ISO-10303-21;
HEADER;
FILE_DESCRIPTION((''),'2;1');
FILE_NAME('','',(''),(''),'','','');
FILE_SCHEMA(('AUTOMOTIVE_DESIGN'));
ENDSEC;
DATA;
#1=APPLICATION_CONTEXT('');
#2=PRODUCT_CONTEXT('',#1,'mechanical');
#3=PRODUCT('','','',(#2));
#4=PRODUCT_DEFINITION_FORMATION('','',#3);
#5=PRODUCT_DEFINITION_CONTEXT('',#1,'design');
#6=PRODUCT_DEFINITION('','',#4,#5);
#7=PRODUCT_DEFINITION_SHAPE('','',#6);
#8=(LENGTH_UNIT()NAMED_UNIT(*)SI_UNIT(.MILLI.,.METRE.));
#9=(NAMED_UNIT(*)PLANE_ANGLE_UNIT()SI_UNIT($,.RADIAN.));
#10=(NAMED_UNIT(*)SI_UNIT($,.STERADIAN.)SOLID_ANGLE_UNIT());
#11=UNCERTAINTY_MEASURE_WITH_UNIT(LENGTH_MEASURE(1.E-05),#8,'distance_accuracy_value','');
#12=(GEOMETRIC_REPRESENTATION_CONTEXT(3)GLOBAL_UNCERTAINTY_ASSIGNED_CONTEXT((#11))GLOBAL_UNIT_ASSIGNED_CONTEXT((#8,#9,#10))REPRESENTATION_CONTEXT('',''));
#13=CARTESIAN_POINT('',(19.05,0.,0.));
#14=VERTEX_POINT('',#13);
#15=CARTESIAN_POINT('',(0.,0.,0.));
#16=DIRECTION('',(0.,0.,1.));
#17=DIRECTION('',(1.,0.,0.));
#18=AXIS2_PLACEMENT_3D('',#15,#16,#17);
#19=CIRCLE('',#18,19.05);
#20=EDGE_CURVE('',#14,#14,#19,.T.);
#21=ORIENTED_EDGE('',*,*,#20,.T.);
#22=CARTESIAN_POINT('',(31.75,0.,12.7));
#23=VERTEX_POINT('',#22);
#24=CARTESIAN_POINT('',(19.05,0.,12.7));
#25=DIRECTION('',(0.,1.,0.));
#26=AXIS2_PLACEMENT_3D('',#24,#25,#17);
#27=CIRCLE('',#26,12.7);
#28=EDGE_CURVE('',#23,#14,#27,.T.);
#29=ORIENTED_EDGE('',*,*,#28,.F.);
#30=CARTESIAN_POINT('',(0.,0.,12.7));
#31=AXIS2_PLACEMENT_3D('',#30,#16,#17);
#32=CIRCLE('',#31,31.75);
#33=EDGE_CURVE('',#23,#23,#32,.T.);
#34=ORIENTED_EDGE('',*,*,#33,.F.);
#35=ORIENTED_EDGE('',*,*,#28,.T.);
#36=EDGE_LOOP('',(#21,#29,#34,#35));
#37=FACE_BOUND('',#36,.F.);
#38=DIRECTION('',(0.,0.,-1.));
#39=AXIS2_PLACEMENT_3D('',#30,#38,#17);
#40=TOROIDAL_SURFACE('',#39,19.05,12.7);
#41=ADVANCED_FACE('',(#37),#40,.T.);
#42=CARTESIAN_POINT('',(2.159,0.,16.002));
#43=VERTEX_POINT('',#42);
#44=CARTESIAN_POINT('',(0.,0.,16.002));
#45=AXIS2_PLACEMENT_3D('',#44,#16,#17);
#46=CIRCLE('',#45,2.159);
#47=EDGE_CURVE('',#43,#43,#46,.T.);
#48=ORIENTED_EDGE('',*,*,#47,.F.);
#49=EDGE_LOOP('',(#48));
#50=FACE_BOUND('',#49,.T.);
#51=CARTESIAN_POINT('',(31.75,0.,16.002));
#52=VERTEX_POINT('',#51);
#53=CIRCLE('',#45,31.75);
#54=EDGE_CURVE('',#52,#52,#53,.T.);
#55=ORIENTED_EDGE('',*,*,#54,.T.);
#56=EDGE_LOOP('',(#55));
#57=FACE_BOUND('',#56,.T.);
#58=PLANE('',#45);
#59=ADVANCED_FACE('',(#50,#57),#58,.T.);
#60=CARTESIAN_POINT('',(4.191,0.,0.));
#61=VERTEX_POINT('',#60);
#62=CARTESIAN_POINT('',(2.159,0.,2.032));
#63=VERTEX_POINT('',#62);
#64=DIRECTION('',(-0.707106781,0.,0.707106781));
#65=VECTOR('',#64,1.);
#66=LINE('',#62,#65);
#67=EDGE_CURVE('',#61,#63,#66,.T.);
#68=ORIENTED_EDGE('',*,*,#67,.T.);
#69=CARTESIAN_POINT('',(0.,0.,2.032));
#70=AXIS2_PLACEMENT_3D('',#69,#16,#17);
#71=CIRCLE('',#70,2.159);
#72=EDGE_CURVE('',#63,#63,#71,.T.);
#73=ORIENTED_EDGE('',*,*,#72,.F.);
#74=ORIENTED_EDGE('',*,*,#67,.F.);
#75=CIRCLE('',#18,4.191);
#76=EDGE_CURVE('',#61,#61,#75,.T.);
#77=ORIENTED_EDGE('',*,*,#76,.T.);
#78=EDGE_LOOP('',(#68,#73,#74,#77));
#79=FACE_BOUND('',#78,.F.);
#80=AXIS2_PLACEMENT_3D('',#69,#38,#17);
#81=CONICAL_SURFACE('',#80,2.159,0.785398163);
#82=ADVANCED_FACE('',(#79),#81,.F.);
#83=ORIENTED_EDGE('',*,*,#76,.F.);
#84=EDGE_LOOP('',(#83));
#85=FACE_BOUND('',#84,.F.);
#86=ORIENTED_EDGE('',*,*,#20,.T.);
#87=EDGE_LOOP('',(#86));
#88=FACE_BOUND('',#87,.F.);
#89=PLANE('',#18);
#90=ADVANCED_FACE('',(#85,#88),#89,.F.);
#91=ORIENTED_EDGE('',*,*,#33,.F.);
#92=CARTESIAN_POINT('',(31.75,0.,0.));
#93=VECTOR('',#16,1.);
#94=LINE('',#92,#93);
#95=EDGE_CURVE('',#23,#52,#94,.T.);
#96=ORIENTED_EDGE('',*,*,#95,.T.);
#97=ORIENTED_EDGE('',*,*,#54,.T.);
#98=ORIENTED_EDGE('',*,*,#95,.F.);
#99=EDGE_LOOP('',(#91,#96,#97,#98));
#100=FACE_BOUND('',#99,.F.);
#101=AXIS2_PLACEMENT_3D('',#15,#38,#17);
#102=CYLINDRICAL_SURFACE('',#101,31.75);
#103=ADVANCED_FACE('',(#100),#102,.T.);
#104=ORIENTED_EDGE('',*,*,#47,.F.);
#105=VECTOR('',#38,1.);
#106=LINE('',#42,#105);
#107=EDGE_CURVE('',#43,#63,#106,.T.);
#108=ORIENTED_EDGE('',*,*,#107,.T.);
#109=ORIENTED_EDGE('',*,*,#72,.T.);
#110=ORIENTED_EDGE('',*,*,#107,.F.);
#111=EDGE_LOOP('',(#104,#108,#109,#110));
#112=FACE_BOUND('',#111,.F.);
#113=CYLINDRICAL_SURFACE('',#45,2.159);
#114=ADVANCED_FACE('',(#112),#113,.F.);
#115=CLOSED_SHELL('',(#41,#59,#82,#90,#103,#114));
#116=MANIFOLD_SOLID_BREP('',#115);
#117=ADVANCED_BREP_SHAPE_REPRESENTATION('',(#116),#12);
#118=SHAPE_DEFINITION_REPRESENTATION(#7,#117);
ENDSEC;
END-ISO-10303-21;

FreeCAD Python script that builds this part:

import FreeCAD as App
import Part
import Sketcher
Q = App.Units.Quantity


def edges_at(feature, points):
    """Names of the edges that pass closest to the given points."""
    edges = feature.Shape.Edges
    near = lambda p: min(range(len(edges)), key=lambda i: edges[i].distToShape(Part.Vertex(*p))[0])
    return sorted({f"Edge{near(p) + 1}" for p in points})

doc = App.newDocument("Part")
params = doc.addObject("Spreadsheet::Sheet", "Params")
for row, (alias, value) in enumerate([
    ("sketch1_diameter", "2.5 in"),
    ("pad1_length", "0.63 in"),
    ("fillet_radius", "0.5 in"),
    ("sketch2_diameter", "0.17 in"),
    ("chamfer_size", "0.08 in"),
], start=1):
    params.set(f"A{row}", alias)
    params.set(f"B{row}", "=" + value)
    params.setAlias(f"B{row}", alias)

body = doc.addObject("PartDesign::Body", "Body")

sketch1 = body.newObject("Sketcher::SketchObject", "Sketch")
sketch1.AttachmentSupport = (doc.getObject("XY_Plane"), [""])
sketch1.MapMode = "FlatFace"
sketch1.addGeometry(Part.Circle(App.Vector(0, 0, 0), App.Vector(0, 0, 1), 31.75), False)
sketch1.addConstraint(Sketcher.Constraint("Coincident", 0, 3, -1, 1))
sketch1.addConstraint(Sketcher.Constraint("Diameter", 0, Q("2.5 in")))
sketch1.setExpression("Constraints[1]", "Params.sketch1_diameter")
pad1 = body.newObject("PartDesign::Pad", "Pad")
pad1.Profile = sketch1
pad1.setExpression("Length", "Params.pad1_length")
doc.recompute()

fillet = body.newObject("PartDesign::Fillet", "Fillet")
fillet.Base = (pad1, edges_at(pad1, [(-31.75, 0, 0)]))
fillet.setExpression("Radius", "Params.fillet_radius")

sketch2 = body.newObject("Sketcher::SketchObject", "Sketch001")
sketch2.AttachmentSupport = (doc.getObject("XY_Plane"), [""])
sketch2.MapMode = "FlatFace"
sketch2.AttachmentOffset = App.Placement(App.Vector(0, 0, 0.63 * 25.4), App.Rotation())
sketch2.addGeometry(Part.Circle(App.Vector(0, 0, 0), App.Vector(0, 0, 1), 2.159), False)
sketch2.addConstraint(Sketcher.Constraint("Coincident", 0, 3, -1, 1))
sketch2.addConstraint(Sketcher.Constraint("Diameter", 0, Q("0.17 in")))
sketch2.setExpression("Constraints[1]", "Params.sketch2_diameter")
pocket1 = body.newObject("PartDesign::Pocket", "Pocket")
pocket1.Profile = sketch2
pocket1.Type = "ThroughAll"
doc.recompute()

chamfer = body.newObject("PartDesign::Chamfer", "Chamfer")
chamfer.Base = (pocket1, edges_at(pocket1, [(-2.159, 0, 0)]))
chamfer.setExpression("Size", "Params.chamfer_size")

doc.recompute()
